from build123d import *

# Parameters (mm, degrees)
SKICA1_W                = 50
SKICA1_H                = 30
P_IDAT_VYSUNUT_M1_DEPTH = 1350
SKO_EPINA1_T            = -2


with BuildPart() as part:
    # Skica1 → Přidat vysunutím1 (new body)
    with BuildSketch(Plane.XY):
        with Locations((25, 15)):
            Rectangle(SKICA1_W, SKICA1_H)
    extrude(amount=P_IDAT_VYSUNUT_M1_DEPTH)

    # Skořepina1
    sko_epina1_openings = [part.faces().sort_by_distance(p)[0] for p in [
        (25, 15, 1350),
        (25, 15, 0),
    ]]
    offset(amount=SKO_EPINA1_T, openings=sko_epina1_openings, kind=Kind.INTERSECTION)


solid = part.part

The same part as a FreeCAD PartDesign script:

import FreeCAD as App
import Part
import Sketcher


def faces_at(feature, points):
    """Names of the faces that lie closest to the given points."""
    faces = feature.Shape.Faces
    near = lambda p: min(range(len(faces)), key=lambda i: faces[i].distToShape(Part.Vertex(*p))[0])
    return sorted({f"Face{near(p) + 1}" for p in points})


def add_polygon(sketch, points):
    """Adds a closed chain of lines whose ends are joined by coincident constraints."""
    first, n = sketch.GeometryCount, len(points)
    for a, b in zip(points, points[1:] + points[:1]):
        sketch.addGeometry(Part.LineSegment(App.Vector(*a, 0), App.Vector(*b, 0)), False)
    for i in range(n):
        sketch.addConstraint(Sketcher.Constraint("Coincident", first + i, 2, first + (i + 1) % n, 1))

doc = App.newDocument("Part")
body = doc.addObject("PartDesign::Body", "Body")

sketch1 = body.newObject("Sketcher::SketchObject", "Sketch")
sketch1.AttachmentSupport = (doc.getObject("XY_Plane"), [""])
sketch1.MapMode = "FlatFace"
add_polygon(sketch1, [(0, 30), (0, 0), (50, 0), (50, 30)])
sketch1.addConstraint([
    Sketcher.Constraint("Vertical", 0),
    Sketcher.Constraint("Horizontal", 1),
    Sketcher.Constraint("Vertical", 2),
    Sketcher.Constraint("Horizontal", 3),
    Sketcher.Constraint("Coincident", 0, 2, -1, 1),
    Sketcher.Constraint("DistanceX", 1, 1, 1, 2, 50.0),
    Sketcher.Constraint("DistanceY", 0, 2, 0, 1, 30.0),
])
pad1 = body.newObject("PartDesign::Pad", "Pad")
pad1.Profile = sketch1
pad1.Length = 1350
doc.recompute()

thickness = body.newObject("PartDesign::Thickness", "Thickness")
thickness.Base = (pad1, faces_at(pad1, [(25, 15, 1350), (25, 15, 0)]))
thickness.Value = 2
thickness.Reversed = True
thickness.Join = "Intersection"

doc.recompute()
